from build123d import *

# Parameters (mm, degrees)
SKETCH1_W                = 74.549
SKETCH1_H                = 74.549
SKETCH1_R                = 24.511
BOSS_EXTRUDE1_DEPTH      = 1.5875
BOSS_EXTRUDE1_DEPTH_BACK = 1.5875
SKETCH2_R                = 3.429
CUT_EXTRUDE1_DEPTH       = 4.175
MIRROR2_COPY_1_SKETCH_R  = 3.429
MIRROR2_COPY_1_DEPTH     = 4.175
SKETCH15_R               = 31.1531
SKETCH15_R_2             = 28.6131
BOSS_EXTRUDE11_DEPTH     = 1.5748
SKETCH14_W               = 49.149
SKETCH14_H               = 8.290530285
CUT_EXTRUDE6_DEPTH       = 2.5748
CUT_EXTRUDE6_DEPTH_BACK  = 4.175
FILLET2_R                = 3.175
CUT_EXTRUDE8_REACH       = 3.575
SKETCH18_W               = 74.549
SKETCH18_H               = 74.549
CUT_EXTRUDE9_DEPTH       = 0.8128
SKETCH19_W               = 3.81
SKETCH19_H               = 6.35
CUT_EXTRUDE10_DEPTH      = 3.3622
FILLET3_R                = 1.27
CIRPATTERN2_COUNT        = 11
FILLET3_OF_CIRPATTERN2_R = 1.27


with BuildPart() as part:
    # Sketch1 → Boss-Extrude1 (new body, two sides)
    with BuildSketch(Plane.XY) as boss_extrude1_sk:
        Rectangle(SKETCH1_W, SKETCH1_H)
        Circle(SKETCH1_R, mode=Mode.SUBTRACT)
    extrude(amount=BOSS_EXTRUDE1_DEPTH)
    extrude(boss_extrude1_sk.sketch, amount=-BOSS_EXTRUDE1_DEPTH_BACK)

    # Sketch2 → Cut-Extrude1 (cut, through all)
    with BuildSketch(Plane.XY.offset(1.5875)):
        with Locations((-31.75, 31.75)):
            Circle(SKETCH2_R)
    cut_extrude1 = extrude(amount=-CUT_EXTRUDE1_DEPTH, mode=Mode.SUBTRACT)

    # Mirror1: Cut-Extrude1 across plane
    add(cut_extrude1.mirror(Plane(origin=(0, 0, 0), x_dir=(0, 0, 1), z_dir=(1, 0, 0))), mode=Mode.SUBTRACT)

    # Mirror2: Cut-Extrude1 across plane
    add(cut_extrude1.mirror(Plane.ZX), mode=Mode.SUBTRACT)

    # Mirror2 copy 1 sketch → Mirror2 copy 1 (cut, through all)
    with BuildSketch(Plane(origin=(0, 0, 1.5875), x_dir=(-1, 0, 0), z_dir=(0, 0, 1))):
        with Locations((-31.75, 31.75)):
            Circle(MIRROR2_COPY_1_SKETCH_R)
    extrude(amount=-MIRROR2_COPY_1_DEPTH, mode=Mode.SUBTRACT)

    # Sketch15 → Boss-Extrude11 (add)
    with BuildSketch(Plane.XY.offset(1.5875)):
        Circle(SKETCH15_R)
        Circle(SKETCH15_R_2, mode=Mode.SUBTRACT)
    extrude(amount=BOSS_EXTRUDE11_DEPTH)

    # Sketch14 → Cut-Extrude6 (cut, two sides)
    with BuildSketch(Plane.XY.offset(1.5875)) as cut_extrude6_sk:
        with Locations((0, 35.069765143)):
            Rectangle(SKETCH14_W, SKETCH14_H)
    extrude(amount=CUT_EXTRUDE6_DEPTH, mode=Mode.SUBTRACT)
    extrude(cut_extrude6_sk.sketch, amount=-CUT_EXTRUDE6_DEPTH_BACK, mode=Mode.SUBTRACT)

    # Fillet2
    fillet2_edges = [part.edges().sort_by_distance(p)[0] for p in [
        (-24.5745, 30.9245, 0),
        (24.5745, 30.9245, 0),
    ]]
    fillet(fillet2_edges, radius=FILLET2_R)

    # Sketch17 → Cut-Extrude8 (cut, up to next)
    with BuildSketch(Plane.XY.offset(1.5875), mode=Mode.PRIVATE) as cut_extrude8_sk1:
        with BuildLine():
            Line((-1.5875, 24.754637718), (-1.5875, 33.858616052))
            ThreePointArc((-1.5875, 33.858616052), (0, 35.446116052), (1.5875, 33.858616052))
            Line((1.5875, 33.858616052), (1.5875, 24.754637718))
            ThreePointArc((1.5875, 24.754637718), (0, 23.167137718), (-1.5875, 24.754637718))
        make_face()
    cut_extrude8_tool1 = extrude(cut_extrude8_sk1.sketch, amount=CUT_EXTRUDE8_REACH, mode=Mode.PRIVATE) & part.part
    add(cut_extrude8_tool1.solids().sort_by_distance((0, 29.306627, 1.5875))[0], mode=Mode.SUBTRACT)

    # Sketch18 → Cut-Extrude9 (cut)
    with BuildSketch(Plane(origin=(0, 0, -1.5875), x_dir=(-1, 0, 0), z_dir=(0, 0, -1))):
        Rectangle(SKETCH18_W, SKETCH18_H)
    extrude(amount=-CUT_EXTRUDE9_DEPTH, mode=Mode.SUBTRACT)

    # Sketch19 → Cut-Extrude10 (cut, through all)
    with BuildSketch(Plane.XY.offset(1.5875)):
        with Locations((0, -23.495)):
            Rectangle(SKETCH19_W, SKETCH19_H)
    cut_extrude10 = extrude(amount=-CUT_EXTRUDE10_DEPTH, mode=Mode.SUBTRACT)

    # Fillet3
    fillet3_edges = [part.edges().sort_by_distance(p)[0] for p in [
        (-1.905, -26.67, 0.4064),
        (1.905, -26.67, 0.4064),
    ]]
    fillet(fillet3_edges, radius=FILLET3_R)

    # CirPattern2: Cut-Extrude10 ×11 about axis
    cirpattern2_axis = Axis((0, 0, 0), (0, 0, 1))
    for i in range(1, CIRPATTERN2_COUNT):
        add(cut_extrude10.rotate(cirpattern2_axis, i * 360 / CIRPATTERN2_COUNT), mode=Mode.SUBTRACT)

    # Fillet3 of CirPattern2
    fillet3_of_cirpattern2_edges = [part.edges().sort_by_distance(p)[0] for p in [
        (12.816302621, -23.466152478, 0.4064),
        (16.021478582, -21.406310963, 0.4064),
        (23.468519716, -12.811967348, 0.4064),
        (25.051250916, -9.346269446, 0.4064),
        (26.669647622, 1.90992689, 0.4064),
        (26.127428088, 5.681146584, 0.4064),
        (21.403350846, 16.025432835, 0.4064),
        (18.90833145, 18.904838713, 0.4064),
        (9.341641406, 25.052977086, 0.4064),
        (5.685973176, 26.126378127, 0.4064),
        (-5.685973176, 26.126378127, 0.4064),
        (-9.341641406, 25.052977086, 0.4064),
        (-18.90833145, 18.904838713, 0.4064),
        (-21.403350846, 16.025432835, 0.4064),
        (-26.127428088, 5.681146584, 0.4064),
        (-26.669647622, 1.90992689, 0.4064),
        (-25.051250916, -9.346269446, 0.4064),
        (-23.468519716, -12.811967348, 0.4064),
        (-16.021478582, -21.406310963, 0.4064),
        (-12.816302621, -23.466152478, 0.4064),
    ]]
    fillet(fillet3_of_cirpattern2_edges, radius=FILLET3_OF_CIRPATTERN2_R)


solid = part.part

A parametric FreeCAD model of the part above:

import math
import FreeCAD as App
import Part
import Sketcher
from FreeCAD import Vector
Q = App.Units.Quantity


def edges_at(feature, points):
    """Names of the edges that pass closest to the given points."""
    edges = feature.Shape.Edges
    near = lambda p: min(range(len(edges)), key=lambda i: edges[i].distToShape(Part.Vertex(*p))[0])
    return sorted({f"Edge{near(p) + 1}" for p in points})


def add_polygon(sketch, points):
    """Adds a closed chain of lines whose ends are joined by coincident constraints."""
    first, n = sketch.GeometryCount, len(points)
    for a, b in zip(points, points[1:] + points[:1]):
        sketch.addGeometry(Part.LineSegment(App.Vector(*a, 0), App.Vector(*b, 0)), False)
    for i in range(n):
        sketch.addConstraint(Sketcher.Constraint("Coincident", first + i, 2, first + (i + 1) % n, 1))

doc = App.newDocument("Part")
params = doc.addObject("Spreadsheet::Sheet", "Params")
for row, (alias, value) in enumerate([
    ("sketch1_diameter", "1.93 in"),
    ("sketch1_width", "2.935 in"),
    ("pad1_length", "0.0625 in"),
    ("pad1_length2", "0.0625 in"),
    ("sketch2_diameter", "0.27 in"),
    ("sketch3_diameter", "0.27 in"),
    ("sketch4_diameter", "2.453 in"),
    ("sketch4_diameter2", "2.253 in"),
    ("pad2_length", "0.062 in"),
    ("sketch5_width", "1.935 in"),
    ("fillet_radius", "0.125 in"),
    ("sketch6_radius", "0.0625 in"),
    ("sketch7_width", "2.935 in"),
    ("pocket5_length", "0.032 in"),
    ("sketch8_width", "0.15 in"),
    ("sketch8_height", "0.25 in"),
    ("fillet2_radius", "0.05 in"),
    ("fillet3_radius", "0.05 in"),
], start=1):
    params.set(f"A{row}", alias)
    params.set(f"B{row}", "=" + value)
    params.setAlias(f"B{row}", alias)

body = doc.addObject("PartDesign::Body", "Body")

# Sketch on XY plane
sketch1 = doc.addObject("Sketcher::SketchObject", "Sketch")
body.addObject(sketch1)
sketch1.AttachmentSupport = (doc.XY_Plane, [""])
sketch1.MapMode = "FlatFace"
add_polygon(sketch1, [(-37.2745, 37.2745), (-37.2745, -37.2745), (37.2745, -37.2745), (37.2745, 37.2745)])  # lines 0-3
sketch1.addGeometry(Part.Circle(Vector(0, 0, 0), Vector(0, 0, 1), 24.511), False)  # 4
sketch1.addConstraint([
    Sketcher.Constraint("Vertical", 0),
    Sketcher.Constraint("Horizontal", 1),
    Sketcher.Constraint("Vertical", 2),
    Sketcher.Constraint("Horizontal", 3),
    Sketcher.Constraint("Coincident", 4, 3, -1, 1),
    Sketcher.Constraint("Symmetric", 0, 2, 2, 2, -1, 1),
    Sketcher.Constraint("Equal", 3, 0),
    Sketcher.Constraint("Diameter", 4, Q("1.93 in")),
    Sketcher.Constraint("DistanceX", 1, 1, 1, 2, Q("2.935 in")),
])
sketch1.setExpression("Constraints[11]", "Params.sketch1_diameter")
sketch1.setExpression("Constraints[12]", "Params.sketch1_width")
pad1 = doc.addObject("PartDesign::Pad", "Pad")
body.addObject(pad1)
pad1.Profile = sketch1
pad1.Type = "TwoLengths"
pad1.setExpression("Length", "Params.pad1_length")
pad1.setExpression("Length2", "Params.pad1_length2")

# Sketch on XY plane
sketch2 = doc.addObject("Sketcher::SketchObject", "Sketch001")
body.addObject(sketch2)
sketch2.AttachmentSupport = (doc.XY_Plane, [""])
sketch2.MapMode = "FlatFace"
sketch2.AttachmentOffset = App.Placement(Vector(0, 0, 0.0625 * 25.4), App.Rotation())
sketch2.addGeometry(Part.Circle(Vector(-31.75, 31.75, 0), Vector(0, 0, 1), 3.429), False)
sketch2.addConstraint([
    Sketcher.Constraint("Diameter", 0, Q("0.27 in")),
    Sketcher.Constraint("DistanceX", 0, 3, -1, 1, Q("1.25 in")),
    Sketcher.Constraint("DistanceY", -1, 1, 0, 3, Q("1.25 in")),
])
sketch2.setExpression("Constraints[0]", "Params.sketch2_diameter")
pocket1 = doc.addObject("PartDesign::Pocket", "Pocket")
body.addObject(pocket1)
pocket1.Profile = sketch2
pocket1.Type = "ThroughAll"
doc.recompute()

mirrored = doc.addObject("PartDesign::Mirrored", "Mirrored")
body.addObject(mirrored)
mirrored.Originals = [pocket1]
mirrored.MirrorPlane = (doc.YZ_Plane, [""])
body.Tip = mirrored
doc.recompute()

mirrored2 = doc.addObject("PartDesign::Mirrored", "Mirrored001")
body.addObject(mirrored2)
mirrored2.Originals = [pocket1]
mirrored2.MirrorPlane = (doc.XZ_Plane, [""])
body.Tip = mirrored2

# Sketch on XY plane
sketch3 = doc.addObject("Sketcher::SketchObject", "Sketch002")
body.addObject(sketch3)
sketch3.AttachmentSupport = (doc.XY_Plane, [""])
sketch3.MapMode = "FlatFace"
sketch3.AttachmentOffset = App.Placement(Vector(0, 0, 0.0625 * 25.4), App.Rotation())
sketch3.addGeometry(Part.Circle(Vector(31.75, -31.75, 0), Vector(0, 0, 1), 3.429), False)
sketch3.addConstraint([
    Sketcher.Constraint("Diameter", 0, Q("0.27 in")),
    Sketcher.Constraint("DistanceX", -1, 1, 0, 3, Q("1.25 in")),
    Sketcher.Constraint("DistanceY", 0, 3, -1, 1, Q("1.25 in")),
])
sketch3.setExpression("Constraints[0]", "Params.sketch3_diameter")
pocket2 = doc.addObject("PartDesign::Pocket", "Pocket001")
body.addObject(pocket2)
pocket2.Profile = sketch3
pocket2.Type = "ThroughAll"

# Sketch on XY plane
sketch4 = doc.addObject("Sketcher::SketchObject", "Sketch003")
body.addObject(sketch4)
sketch4.AttachmentSupport = (doc.XY_Plane, [""])
sketch4.MapMode = "FlatFace"
sketch4.AttachmentOffset = App.Placement(Vector(0, 0, 0.0625 * 25.4), App.Rotation())
sketch4.addGeometry([
    Part.Circle(Vector(0, 0, 0), Vector(0, 0, 1), 31.1531),
    Part.Circle(Vector(0, 0, 0), Vector(0, 0, 1), 28.6131),
], False)
sketch4.addConstraint([
    Sketcher.Constraint("Coincident", 0, 3, -1, 1),
    Sketcher.Constraint("Coincident", 1, 3, -1, 1),
    Sketcher.Constraint("Diameter", 0, Q("2.453 in")),
    Sketcher.Constraint("Diameter", 1, Q("2.253 in")),
])
sketch4.setExpression("Constraints[2]", "Params.sketch4_diameter")
sketch4.setExpression("Constraints[3]", "Params.sketch4_diameter2")
pad2 = doc.addObject("PartDesign::Pad", "Pad001")
body.addObject(pad2)
pad2.Profile = sketch4
pad2.setExpression("Length", "Params.pad2_length")

# Sketch on XY plane
sketch5 = doc.addObject("Sketcher::SketchObject", "Sketch004")
body.addObject(sketch5)
sketch5.AttachmentSupport = (doc.XY_Plane, [""])
sketch5.MapMode = "FlatFace"
sketch5.AttachmentOffset = App.Placement(Vector(0, 0, 0.0625 * 25.4), App.Rotation())
add_polygon(sketch5, [(-24.5745, 39.21503), (-24.5745, 30.9245), (24.5745, 30.9245), (24.5745, 39.21503)])  # lines 0-3
sketch5.addConstraint([
    Sketcher.Constraint("Vertical", 0),
    Sketcher.Constraint("Horizontal", 1),
    Sketcher.Constraint("Vertical", 2),
    Sketcher.Constraint("Horizontal", 3),
    Sketcher.Constraint("DistanceX", 1, 1, 1, 2, Q("1.935 in")),
    Sketcher.Constraint("DistanceX", 0, 2, -1, 1, Q("0.9675 in")),
    Sketcher.Constraint("DistanceY", -1, 1, 0, 2, Q("1.2175 in")),
    Sketcher.Constraint("DistanceY", 0, 2, 0, 1, 8.29053),
])
sketch5.setExpression("Constraints[8]", "Params.sketch5_width")
pocket3 = doc.addObject("PartDesign::Pocket", "Pocket002")
body.addObject(pocket3)
pocket3.Profile = sketch5
pocket3.Type = "ThroughAll"
pocket3.Midplane = True
doc.recompute()

fillet = doc.addObject("PartDesign::Fillet", "Fillet")
body.addObject(fillet)
fillet.Base = (pocket3, edges_at(pocket3, [(-24.575, 30.924, 0), (24.575, 30.924, 0)]))
fillet.setExpression("Radius", "Params.fillet_radius")

# Sketch on XY plane
sketch6 = doc.addObject("Sketcher::SketchObject", "Sketch005")
body.addObject(sketch6)
sketch6.AttachmentSupport = (doc.XY_Plane, [""])
sketch6.MapMode = "FlatFace"
sketch6.AttachmentOffset = App.Placement(Vector(0, 0, 0.0625 * 25.4), App.Rotation())
sketch6.addGeometry([
    Part.LineSegment(Vector(-1.5875, 33.858616, 0), Vector(-1.5875, 24.754638, 0)),
    Part.ArcOfCircle(Part.Circle(Vector(0, 24.754638, 0), Vector(0, 0, 1), 1.5875), math.radians(180), math.radians(360)),
    Part.LineSegment(Vector(1.5875, 24.754638, 0), Vector(1.5875, 33.858616, 0)),
    Part.ArcOfCircle(Part.Circle(Vector(0, 33.858616, 0), Vector(0, 0, 1), 1.5875), math.radians(0), math.radians(180)),
], False)
sketch6.addConstraint([
    Sketcher.Constraint("Tangent", 0, 2, 1, 1),
    Sketcher.Constraint("Tangent", 1, 2, 2, 1),
    Sketcher.Constraint("Tangent", 2, 2, 3, 1),
    Sketcher.Constraint("Tangent", 3, 2, 0, 1),
    Sketcher.Constraint("Vertical", 0),
    Sketcher.Constraint("Vertical", 2),
    Sketcher.Constraint("PointOnObject", 1, 3, -2),
    Sketcher.Constraint("Radius", 1, Q("0.0625 in")),
    Sketcher.Constraint("DistanceY", 0, 2, 0, 1, 9.103978),
    Sketcher.Constraint("DistanceY", -1, 1, 1, 3, 24.754638),
])
sketch6.setExpression("Constraints[7]", "Params.sketch6_radius")
pocket4 = doc.addObject("PartDesign::Pocket", "Pocket003")
body.addObject(pocket4)
pocket4.Profile = sketch6
pocket4.Type = "UpToFirst"
pocket4.Reversed = True

# Sketch on XY plane
sketch7 = doc.addObject("Sketcher::SketchObject", "Sketch006")
body.addObject(sketch7)
sketch7.AttachmentSupport = (doc.XY_Plane, [""])
sketch7.MapMode = "FlatFace"
sketch7.AttachmentOffset = App.Placement(Vector(0, 0, -0.0625 * 25.4), App.Rotation())
add_polygon(sketch7, [(37.2745, 37.2745), (37.2745, -37.2745), (-37.2745, -37.2745), (-37.2745, 37.2745)])  # lines 0-3
sketch7.addConstraint([
    Sketcher.Constraint("Vertical", 0),
    Sketcher.Constraint("Horizontal", 1),
    Sketcher.Constraint("Vertical", 2),
    Sketcher.Constraint("Horizontal", 3),
    Sketcher.Constraint("Symmetric", 0, 2, 2, 2, -1, 1),
    Sketcher.Constraint("Equal", 3, 0),
    Sketcher.Constraint("DistanceX", 1, 2, 1, 1, Q("2.935 in")),
])
sketch7.setExpression("Constraints[10]", "Params.sketch7_width")
pocket5 = doc.addObject("PartDesign::Pocket", "Pocket004")
body.addObject(pocket5)
pocket5.Profile = sketch7
pocket5.setExpression("Length", "Params.pocket5_length")
pocket5.Reversed = True

# Sketch on XY plane
sketch8 = doc.addObject("Sketcher::SketchObject", "Sketch007")
body.addObject(sketch8)
sketch8.AttachmentSupport = (doc.XY_Plane, [""])
sketch8.MapMode = "FlatFace"
sketch8.AttachmentOffset = App.Placement(Vector(0, 0, 0.0625 * 25.4), App.Rotation())
add_polygon(sketch8, [(-1.905, -20.32), (-1.905, -26.67), (1.905, -26.67), (1.905, -20.32)])  # lines 0-3
sketch8.addConstraint([
    Sketcher.Constraint("Vertical", 0),
    Sketcher.Constraint("Horizontal", 1),
    Sketcher.Constraint("Vertical", 2),
    Sketcher.Constraint("Horizontal", 3),
    Sketcher.Constraint("DistanceX", 1, 1, 1, 2, Q("0.15 in")),
    Sketcher.Constraint("DistanceY", 0, 2, 0, 1, Q("0.25 in")),
    Sketcher.Constraint("DistanceY", 2, 2, -1, 1, Q("0.8 in")),
    Sketcher.Constraint("DistanceX", 0, 2, -1, 1, Q("0.075 in")),
])
sketch8.setExpression("Constraints[8]", "Params.sketch8_width")
sketch8.setExpression("Constraints[9]", "Params.sketch8_height")
pocket6 = doc.addObject("PartDesign::Pocket", "Pocket005")
body.addObject(pocket6)
pocket6.Profile = sketch8
pocket6.Type = "ThroughAll"
doc.recompute()

fillet2 = doc.addObject("PartDesign::Fillet", "Fillet001")
body.addObject(fillet2)
fillet2.Base = (pocket6, edges_at(pocket6, [(-1.905, -26.67, 0.406), (1.905, -26.67, 0.406)]))
fillet2.setExpression("Radius", "Params.fillet2_radius")
doc.recompute()

polarpattern = doc.addObject("PartDesign::PolarPattern", "PolarPattern")
body.addObject(polarpattern)
polarpattern.Originals = [pocket6]
polarpattern.Axis = (doc.Z_Axis, [""])
polarpattern.Angle = 360
polarpattern.Occurrences = 11
body.Tip = polarpattern
doc.recompute()

fillet3 = doc.addObject("PartDesign::Fillet", "Fillet002")
body.addObject(fillet3)
fillet3.Base = (polarpattern, edges_at(polarpattern, [
    (12.816, -23.466, 0.406),
    (16.021, -21.406, 0.406),
    (23.469, -12.812, 0.406),
    (25.051, -9.346, 0.406),
    (26.67, 1.91, 0.406),
    (26.127, 5.681, 0.406),
    (21.403, 16.025, 0.406),
    (18.908, 18.905, 0.406),
    (9.342, 25.053, 0.406),
    (5.686, 26.126, 0.406),
    (-5.686, 26.126, 0.406),
    (-9.342, 25.053, 0.406),
    (-18.908, 18.905, 0.406),
    (-21.403, 16.025, 0.406),
    (-26.127, 5.681, 0.406),
    (-26.67, 1.91, 0.406),
    (-25.051, -9.346, 0.406),
    (-23.469, -12.812, 0.406),
    (-16.021, -21.406, 0.406),
    (-12.816, -23.466, 0.406),
]))
fillet3.setExpression("Radius", "Params.fillet3_radius")

doc.recompute()
